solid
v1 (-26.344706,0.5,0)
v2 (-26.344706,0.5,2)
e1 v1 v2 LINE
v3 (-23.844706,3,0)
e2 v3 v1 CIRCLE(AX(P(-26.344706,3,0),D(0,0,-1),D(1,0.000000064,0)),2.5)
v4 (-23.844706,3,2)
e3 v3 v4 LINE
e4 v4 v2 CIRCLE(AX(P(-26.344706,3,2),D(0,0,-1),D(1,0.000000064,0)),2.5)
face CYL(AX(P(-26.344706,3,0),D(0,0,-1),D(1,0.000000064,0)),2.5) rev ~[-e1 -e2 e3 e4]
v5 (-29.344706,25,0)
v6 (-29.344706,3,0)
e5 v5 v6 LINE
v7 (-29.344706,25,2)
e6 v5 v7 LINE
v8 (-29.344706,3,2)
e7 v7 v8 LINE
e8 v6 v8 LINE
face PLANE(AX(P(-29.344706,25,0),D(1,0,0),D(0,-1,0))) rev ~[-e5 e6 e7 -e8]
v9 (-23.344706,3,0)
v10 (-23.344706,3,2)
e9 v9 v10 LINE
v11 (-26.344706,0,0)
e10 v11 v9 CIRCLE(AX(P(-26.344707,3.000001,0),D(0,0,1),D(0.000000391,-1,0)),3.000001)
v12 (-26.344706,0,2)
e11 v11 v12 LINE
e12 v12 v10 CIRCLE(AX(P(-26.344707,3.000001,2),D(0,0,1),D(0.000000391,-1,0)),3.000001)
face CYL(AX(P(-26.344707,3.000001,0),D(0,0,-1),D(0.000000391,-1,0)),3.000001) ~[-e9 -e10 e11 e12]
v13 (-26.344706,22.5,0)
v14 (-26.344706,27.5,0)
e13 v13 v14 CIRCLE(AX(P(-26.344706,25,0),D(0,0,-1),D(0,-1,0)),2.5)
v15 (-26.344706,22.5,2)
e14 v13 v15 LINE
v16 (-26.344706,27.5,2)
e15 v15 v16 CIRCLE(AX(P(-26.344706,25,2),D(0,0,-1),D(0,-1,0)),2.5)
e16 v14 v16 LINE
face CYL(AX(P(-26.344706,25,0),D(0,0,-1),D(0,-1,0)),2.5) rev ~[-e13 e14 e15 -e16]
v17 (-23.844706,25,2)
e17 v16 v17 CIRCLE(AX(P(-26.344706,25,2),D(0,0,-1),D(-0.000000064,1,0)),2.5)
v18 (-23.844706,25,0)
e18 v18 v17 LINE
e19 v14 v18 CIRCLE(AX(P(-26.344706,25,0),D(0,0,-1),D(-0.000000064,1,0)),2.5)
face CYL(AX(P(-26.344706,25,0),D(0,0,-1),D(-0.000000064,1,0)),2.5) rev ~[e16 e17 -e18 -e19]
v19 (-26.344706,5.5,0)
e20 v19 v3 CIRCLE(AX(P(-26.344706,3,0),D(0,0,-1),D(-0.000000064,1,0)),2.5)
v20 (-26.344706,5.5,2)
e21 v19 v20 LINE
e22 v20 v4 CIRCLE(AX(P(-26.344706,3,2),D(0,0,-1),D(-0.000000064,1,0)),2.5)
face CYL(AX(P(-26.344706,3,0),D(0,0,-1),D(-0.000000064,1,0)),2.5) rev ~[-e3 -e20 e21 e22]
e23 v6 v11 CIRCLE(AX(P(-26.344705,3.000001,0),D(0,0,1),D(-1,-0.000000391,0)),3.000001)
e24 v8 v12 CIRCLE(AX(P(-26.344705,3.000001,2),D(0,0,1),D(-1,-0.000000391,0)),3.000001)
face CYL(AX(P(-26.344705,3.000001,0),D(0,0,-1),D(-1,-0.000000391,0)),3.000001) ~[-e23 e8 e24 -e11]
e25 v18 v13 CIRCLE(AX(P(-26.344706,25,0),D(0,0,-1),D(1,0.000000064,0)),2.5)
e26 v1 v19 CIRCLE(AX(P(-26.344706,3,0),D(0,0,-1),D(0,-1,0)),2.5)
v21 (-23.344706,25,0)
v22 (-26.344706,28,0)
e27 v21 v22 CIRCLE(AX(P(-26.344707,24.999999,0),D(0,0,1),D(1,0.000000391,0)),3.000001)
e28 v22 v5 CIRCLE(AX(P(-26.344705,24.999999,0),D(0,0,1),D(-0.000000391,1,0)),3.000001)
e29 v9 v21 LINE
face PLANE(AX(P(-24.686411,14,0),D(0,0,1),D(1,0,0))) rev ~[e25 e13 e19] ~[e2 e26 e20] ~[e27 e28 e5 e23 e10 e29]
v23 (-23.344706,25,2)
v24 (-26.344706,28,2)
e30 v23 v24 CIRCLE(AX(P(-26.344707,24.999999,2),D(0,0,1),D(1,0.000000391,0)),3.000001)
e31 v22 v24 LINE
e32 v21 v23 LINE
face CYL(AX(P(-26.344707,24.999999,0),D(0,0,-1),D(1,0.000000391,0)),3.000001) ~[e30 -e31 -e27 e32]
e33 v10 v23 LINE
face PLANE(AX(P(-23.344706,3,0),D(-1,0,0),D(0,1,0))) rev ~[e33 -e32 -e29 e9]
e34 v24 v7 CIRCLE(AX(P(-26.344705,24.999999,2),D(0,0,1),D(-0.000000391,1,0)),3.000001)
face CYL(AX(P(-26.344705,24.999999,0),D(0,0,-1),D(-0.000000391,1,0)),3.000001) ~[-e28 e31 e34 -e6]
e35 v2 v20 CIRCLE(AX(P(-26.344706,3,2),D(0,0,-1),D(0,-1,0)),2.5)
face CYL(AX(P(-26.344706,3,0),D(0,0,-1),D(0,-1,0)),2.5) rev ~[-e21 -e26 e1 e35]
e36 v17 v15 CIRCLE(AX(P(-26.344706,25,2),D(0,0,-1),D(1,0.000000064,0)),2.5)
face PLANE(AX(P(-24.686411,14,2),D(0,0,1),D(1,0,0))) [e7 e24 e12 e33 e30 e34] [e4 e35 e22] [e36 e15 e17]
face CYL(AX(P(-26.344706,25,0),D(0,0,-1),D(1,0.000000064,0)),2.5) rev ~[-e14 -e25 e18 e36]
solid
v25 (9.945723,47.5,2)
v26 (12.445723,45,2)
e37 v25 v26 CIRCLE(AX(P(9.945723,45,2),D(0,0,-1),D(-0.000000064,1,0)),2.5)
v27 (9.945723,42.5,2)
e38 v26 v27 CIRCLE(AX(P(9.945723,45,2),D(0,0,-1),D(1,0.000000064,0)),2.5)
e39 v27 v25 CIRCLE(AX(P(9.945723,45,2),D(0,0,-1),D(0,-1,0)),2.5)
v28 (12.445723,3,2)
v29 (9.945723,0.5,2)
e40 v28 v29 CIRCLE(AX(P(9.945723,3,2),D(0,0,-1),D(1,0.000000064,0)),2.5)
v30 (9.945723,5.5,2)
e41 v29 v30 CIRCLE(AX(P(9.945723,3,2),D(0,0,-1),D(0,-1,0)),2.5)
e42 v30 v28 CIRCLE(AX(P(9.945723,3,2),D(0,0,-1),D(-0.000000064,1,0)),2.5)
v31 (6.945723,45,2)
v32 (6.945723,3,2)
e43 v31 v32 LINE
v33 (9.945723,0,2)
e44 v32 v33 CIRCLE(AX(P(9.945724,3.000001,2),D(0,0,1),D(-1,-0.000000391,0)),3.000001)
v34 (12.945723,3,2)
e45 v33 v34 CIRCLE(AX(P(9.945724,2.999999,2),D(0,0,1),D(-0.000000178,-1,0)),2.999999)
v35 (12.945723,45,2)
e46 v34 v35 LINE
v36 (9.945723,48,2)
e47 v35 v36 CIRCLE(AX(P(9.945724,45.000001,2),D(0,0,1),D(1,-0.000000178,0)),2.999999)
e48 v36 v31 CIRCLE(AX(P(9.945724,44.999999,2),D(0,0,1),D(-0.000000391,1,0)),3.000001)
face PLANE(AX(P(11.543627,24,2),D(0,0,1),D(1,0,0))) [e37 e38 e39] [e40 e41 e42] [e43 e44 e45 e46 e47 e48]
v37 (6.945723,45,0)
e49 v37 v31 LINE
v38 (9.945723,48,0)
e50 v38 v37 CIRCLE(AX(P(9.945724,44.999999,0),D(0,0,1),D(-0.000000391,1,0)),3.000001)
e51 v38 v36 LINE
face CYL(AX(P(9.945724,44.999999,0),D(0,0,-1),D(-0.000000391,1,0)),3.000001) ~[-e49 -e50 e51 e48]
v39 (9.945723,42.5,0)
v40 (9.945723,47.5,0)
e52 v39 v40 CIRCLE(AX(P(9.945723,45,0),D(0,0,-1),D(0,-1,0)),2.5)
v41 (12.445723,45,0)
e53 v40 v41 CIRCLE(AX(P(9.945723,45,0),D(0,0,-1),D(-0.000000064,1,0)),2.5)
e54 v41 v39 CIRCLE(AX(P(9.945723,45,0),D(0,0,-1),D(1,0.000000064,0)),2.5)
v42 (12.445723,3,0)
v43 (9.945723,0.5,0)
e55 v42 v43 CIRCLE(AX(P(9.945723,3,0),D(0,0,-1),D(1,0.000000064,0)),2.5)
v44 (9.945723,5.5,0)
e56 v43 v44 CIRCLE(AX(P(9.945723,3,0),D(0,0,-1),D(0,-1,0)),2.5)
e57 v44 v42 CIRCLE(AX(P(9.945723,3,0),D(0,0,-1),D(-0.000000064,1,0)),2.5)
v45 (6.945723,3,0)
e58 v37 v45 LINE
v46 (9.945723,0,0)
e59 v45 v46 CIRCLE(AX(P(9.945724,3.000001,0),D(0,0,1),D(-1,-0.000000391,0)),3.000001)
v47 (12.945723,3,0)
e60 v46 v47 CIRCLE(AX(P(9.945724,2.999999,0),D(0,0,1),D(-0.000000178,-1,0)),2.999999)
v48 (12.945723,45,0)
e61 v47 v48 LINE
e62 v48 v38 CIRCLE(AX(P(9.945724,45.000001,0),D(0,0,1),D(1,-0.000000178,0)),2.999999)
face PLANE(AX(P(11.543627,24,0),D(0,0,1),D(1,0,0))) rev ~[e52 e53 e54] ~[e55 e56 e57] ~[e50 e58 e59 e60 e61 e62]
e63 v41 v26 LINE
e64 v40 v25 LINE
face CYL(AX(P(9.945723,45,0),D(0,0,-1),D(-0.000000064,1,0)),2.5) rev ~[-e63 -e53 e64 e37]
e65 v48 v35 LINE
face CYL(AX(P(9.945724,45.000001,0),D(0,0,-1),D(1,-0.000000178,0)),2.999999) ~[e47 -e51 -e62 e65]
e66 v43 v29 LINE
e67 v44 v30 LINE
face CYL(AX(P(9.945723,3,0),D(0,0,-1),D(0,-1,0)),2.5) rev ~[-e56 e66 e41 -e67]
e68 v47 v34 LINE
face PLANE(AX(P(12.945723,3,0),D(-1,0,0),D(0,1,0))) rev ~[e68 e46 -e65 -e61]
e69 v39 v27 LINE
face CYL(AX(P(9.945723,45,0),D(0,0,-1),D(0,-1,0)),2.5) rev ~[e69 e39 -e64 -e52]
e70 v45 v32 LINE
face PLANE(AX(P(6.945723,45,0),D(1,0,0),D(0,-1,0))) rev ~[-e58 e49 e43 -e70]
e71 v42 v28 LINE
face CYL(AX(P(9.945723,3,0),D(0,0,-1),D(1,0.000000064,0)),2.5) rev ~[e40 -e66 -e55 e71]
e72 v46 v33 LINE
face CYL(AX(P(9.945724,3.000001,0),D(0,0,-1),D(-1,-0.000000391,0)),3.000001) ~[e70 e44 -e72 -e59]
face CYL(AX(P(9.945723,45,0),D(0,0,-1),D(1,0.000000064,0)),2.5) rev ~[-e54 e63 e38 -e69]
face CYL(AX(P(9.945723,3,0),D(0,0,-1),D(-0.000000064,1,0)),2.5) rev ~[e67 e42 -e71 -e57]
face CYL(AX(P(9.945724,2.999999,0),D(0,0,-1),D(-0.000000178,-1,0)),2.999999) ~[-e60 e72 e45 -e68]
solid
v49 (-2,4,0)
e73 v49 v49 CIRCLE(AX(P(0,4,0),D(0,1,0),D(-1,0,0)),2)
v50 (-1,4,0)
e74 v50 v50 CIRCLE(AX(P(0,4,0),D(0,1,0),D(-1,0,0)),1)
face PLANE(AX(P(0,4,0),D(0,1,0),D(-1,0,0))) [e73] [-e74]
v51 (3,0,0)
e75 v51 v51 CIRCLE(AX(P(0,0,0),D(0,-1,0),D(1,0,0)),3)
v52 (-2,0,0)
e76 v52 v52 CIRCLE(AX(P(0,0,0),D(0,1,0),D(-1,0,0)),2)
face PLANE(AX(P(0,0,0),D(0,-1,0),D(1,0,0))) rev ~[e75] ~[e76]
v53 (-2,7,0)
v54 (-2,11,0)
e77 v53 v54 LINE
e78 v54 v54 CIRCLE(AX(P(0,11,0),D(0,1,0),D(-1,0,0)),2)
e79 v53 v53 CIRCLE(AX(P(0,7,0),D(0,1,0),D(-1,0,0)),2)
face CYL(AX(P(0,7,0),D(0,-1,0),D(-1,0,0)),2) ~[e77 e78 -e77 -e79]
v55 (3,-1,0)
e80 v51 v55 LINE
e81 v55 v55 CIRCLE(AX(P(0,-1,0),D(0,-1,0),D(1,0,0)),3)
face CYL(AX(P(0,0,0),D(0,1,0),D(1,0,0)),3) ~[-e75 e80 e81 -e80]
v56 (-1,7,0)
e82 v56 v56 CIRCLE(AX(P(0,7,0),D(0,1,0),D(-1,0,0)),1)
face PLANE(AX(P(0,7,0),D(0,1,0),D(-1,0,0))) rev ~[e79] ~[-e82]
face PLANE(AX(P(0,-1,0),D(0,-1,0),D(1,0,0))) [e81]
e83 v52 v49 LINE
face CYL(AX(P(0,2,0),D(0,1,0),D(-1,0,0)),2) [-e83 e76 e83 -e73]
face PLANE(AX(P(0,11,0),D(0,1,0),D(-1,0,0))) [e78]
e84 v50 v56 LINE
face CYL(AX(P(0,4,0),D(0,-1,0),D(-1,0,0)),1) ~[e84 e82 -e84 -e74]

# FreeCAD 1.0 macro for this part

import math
import FreeCAD as App
import Part
import Sketcher
from FreeCAD import Vector
Q = App.Units.Quantity

doc = App.newDocument("Part")
params = doc.addObject("Spreadsheet::Sheet", "Params")
for row, (alias, value) in enumerate([
    ("sketch1_radius", "3.000001 mm"),
    ("sketch1_radius2", "2.5 mm"),
    ("sketch1_height", "22 mm"),
    ("pad1_length", "2 mm"),
    ("sketch2_radius", "2.999999 mm"),
    ("sketch2_radius2", "2.5 mm"),
    ("sketch2_height", "42 mm"),
    ("pad2_length", "2 mm"),
    ("sketch3_width", "2 mm"),
    ("sketch3_height", "4 mm"),
    ("revolution_angle", "360 deg"),
    ("sketch4_diameter", "6 mm"),
    ("pad3_length", "1 mm"),
    ("sketch5_diameter", "2 mm"),
    ("pad4_length", "3 mm"),
    ("sketch6_diameter", "4 mm"),
    ("pad5_length", "4 mm"),
], start=1):
    params.set(f"A{row}", alias)
    params.set(f"B{row}", "=" + value)
    params.setAlias(f"B{row}", alias)

body = doc.addObject("PartDesign::Body", "Body")

# Sketch on XY plane
sketch1 = body.newObject("Sketcher::SketchObject", "Sketch")
sketch1.AttachmentSupport = (doc.getObject("XY_Plane"), [""])
sketch1.MapMode = "FlatFace"
sketch1.addGeometry(Part.ArcOfCircle(Part.Circle(Vector(-26.3, 3, 0), Vector(0, 0, 1), 3), math.radians(-90), math.radians(0)), False)
sketch1.addGeometry(Part.LineSegment(Vector(-23.3, 3, 0), Vector(-23.3, 25, 0)), False)
sketch1.addGeometry(Part.ArcOfCircle(Part.Circle(Vector(-26.3, 25, 0), Vector(0, 0, 1), 3), math.radians(0), math.radians(90)), False)
sketch1.addGeometry(Part.ArcOfCircle(Part.Circle(Vector(-26.3, 25, 0), Vector(0, 0, 1), 3), math.radians(90), math.radians(180)), False)
sketch1.addGeometry(Part.LineSegment(Vector(-29.3, 25, 0), Vector(-29.3, 3, 0)), False)
sketch1.addGeometry(Part.ArcOfCircle(Part.Circle(Vector(-26.3, 3, 0), Vector(0, 0, 1), 3), math.radians(-180), math.radians(-90)), False)
sketch1.addGeometry(Part.ArcOfCircle(Part.Circle(Vector(-26.3, 25, 0), Vector(0, 0, 1), 2.5), math.radians(0), math.radians(90)), False)
sketch1.addGeometry(Part.ArcOfCircle(Part.Circle(Vector(-26.3, 25, 0), Vector(0, 0, 1), 2.5), math.radians(-90), math.radians(0)), False)
sketch1.addGeometry(Part.ArcOfCircle(Part.Circle(Vector(-26.3, 25, 0), Vector(0, 0, 1), 2.5), math.radians(90), math.radians(270)), False)
sketch1.addGeometry(Part.ArcOfCircle(Part.Circle(Vector(-26.3, 3, 0), Vector(0, 0, 1), 2.5), math.radians(0), math.radians(90)), False)
sketch1.addGeometry(Part.ArcOfCircle(Part.Circle(Vector(-26.3, 3, 0), Vector(0, 0, 1), 2.5), math.radians(-90), math.radians(0)), False)
sketch1.addGeometry(Part.ArcOfCircle(Part.Circle(Vector(-26.3, 3, 0), Vector(0, 0, 1), 2.5), math.radians(90), math.radians(270)), False)
sketch1.addConstraint(Sketcher.Constraint("Tangent", 0, 2, 1, 1))
sketch1.addConstraint(Sketcher.Constraint("Tangent", 1, 2, 2, 1))
sketch1.addConstraint(Sketcher.Constraint("Tangent", 2, 2, 3, 1))
sketch1.addConstraint(Sketcher.Constraint("Tangent", 3, 2, 4, 1))
sketch1.addConstraint(Sketcher.Constraint("Tangent", 4, 2, 5, 1))
sketch1.addConstraint(Sketcher.Constraint("Tangent", 5, 2, 0, 1))
sketch1.addConstraint(Sketcher.Constraint("Tangent", 6, 1, 7, 2))
sketch1.addConstraint(Sketcher.Constraint("Tangent", 7, 1, 8, 2))
sketch1.addConstraint(Sketcher.Constraint("Tangent", 8, 1, 6, 2))
sketch1.addConstraint(Sketcher.Constraint("Tangent", 9, 1, 10, 2))
sketch1.addConstraint(Sketcher.Constraint("Tangent", 10, 1, 11, 2))
sketch1.addConstraint(Sketcher.Constraint("Tangent", 11, 1, 9, 2))
sketch1.addConstraint(Sketcher.Constraint("Vertical", 1))
sketch1.addConstraint(Sketcher.Constraint("Vertical", 4))
sketch1.addConstraint(Sketcher.Constraint("Coincident", 6, 3, 2, 3))
sketch1.addConstraint(Sketcher.Constraint("Coincident", 9, 3, 0, 3))
sketch1.addConstraint(Sketcher.Constraint("Equal", 0, 2))
sketch1.addConstraint(Sketcher.Constraint("Equal", 2, 3))
sketch1.addConstraint(Sketcher.Constraint("Equal", 8, 9))
sketch1.addConstraint(Sketcher.Constraint("PointOnObject", 5, 2, -1))
sketch1.addConstraint(Sketcher.Constraint("Horizontal", 3, 2, 6, 1))
sketch1.addConstraint(Sketcher.Constraint("Horizontal", 4, 2, 9, 1))
sketch1.addConstraint(Sketcher.Constraint("Vertical", 11, 3, 2, 2))
sketch1.addConstraint(Sketcher.Constraint("Vertical", 2, 2, 5, 2))
sketch1.addConstraint(Sketcher.Constraint("Vertical", 5, 2, 7, 1))
sketch1.addConstraint(Sketcher.Constraint("Vertical", 7, 1, 8, 1))
sketch1.addConstraint(Sketcher.Constraint("Vertical", 8, 1, 10, 1))
sketch1.addConstraint(Sketcher.Constraint("Vertical", 10, 1, 11, 1))
sketch1.addConstraint(Sketcher.Constraint("Radius", 0, Q("3.000001 mm")))
sketch1.addConstraint(Sketcher.Constraint("Radius", 6, Q("2.5 mm")))
sketch1.addConstraint(Sketcher.Constraint("DistanceY", 1, 1, 1, 2, Q("22 mm")))
sketch1.addConstraint(Sketcher.Constraint("DistanceX", 0, 3, -1, 1, Q("26.344707 mm")))
sketch1.setExpression("Constraints[28]", "Params.sketch1_radius")
sketch1.setExpression("Constraints[29]", "Params.sketch1_radius2")
sketch1.setExpression("Constraints[30]", "Params.sketch1_height")
pad1 = body.newObject("PartDesign::Pad", "Pad")
pad1.Profile = sketch1
pad1.setExpression("Length", "Params.pad1_length")
body2 = doc.addObject("PartDesign::Body", "Body001")

# Sketch on XY plane
sketch2 = body2.newObject("Sketcher::SketchObject", "Sketch001")
sketch2.AttachmentSupport = (doc.getObject("XY_Plane001"), [""])
sketch2.MapMode = "FlatFace"
sketch2.addGeometry(Part.ArcOfCircle(Part.Circle(Vector(9.9, 3, 0), Vector(0, 0, 1), 3), math.radians(-90), math.radians(0)), False)
sketch2.addGeometry(Part.LineSegment(Vector(12.9, 3, 0), Vector(12.9, 45, 0)), False)
sketch2.addGeometry(Part.ArcOfCircle(Part.Circle(Vector(9.9, 45, 0), Vector(0, 0, 1), 3), math.radians(0), math.radians(90)), False)
sketch2.addGeometry(Part.ArcOfCircle(Part.Circle(Vector(9.9, 45, 0), Vector(0, 0, 1), 3), math.radians(90), math.radians(180)), False)
sketch2.addGeometry(Part.LineSegment(Vector(6.9, 45, 0), Vector(6.9, 3, 0)), False)
sketch2.addGeometry(Part.ArcOfCircle(Part.Circle(Vector(9.9, 3, 0), Vector(0, 0, 1), 3), math.radians(-180), math.radians(-90)), False)
sketch2.addGeometry(Part.ArcOfCircle(Part.Circle(Vector(9.9, 45, 0), Vector(0, 0, 1), 2.5), math.radians(0), math.radians(90)), False)
sketch2.addGeometry(Part.ArcOfCircle(Part.Circle(Vector(9.9, 45, 0), Vector(0, 0, 1), 2.5), math.radians(-90), math.radians(0)), False)
sketch2.addGeometry(Part.ArcOfCircle(Part.Circle(Vector(9.9, 45, 0), Vector(0, 0, 1), 2.5), math.radians(90), math.radians(270)), False)
sketch2.addGeometry(Part.ArcOfCircle(Part.Circle(Vector(9.9, 3, 0), Vector(0, 0, 1), 2.5), math.radians(0), math.radians(90)), False)
sketch2.addGeometry(Part.ArcOfCircle(Part.Circle(Vector(9.9, 3, 0), Vector(0, 0, 1), 2.5), math.radians(-90), math.radians(0)), False)
sketch2.addGeometry(Part.ArcOfCircle(Part.Circle(Vector(9.9, 3, 0), Vector(0, 0, 1), 2.5), math.radians(90), math.radians(270)), False)
sketch2.addConstraint(Sketcher.Constraint("Tangent", 0, 2, 1, 1))
sketch2.addConstraint(Sketcher.Constraint("Tangent", 1, 2, 2, 1))
sketch2.addConstraint(Sketcher.Constraint("Tangent", 2, 2, 3, 1))
sketch2.addConstraint(Sketcher.Constraint("Tangent", 3, 2, 4, 1))
sketch2.addConstraint(Sketcher.Constraint("Tangent", 4, 2, 5, 1))
sketch2.addConstraint(Sketcher.Constraint("Tangent", 5, 2, 0, 1))
sketch2.addConstraint(Sketcher.Constraint("Tangent", 6, 1, 7, 2))
sketch2.addConstraint(Sketcher.Constraint("Tangent", 7, 1, 8, 2))
sketch2.addConstraint(Sketcher.Constraint("Tangent", 8, 1, 6, 2))
sketch2.addConstraint(Sketcher.Constraint("Tangent", 9, 1, 10, 2))
sketch2.addConstraint(Sketcher.Constraint("Tangent", 10, 1, 11, 2))
sketch2.addConstraint(Sketcher.Constraint("Tangent", 11, 1, 9, 2))
sketch2.addConstraint(Sketcher.Constraint("Vertical", 1))
sketch2.addConstraint(Sketcher.Constraint("Vertical", 4))
sketch2.addConstraint(Sketcher.Constraint("Coincident", 6, 3, 2, 3))
sketch2.addConstraint(Sketcher.Constraint("Coincident", 9, 3, 0, 3))
sketch2.addConstraint(Sketcher.Constraint("Equal", 0, 2))
sketch2.addConstraint(Sketcher.Constraint("Equal", 2, 3))
sketch2.addConstraint(Sketcher.Constraint("Equal", 8, 9))
sketch2.addConstraint(Sketcher.Constraint("PointOnObject", 5, 2, -1))
sketch2.addConstraint(Sketcher.Constraint("Horizontal", 3, 2, 6, 1))
sketch2.addConstraint(Sketcher.Constraint("Horizontal", 4, 2, 9, 1))
sketch2.addConstraint(Sketcher.Constraint("Vertical", 11, 3, 2, 2))
sketch2.addConstraint(Sketcher.Constraint("Vertical", 2, 2, 5, 2))
sketch2.addConstraint(Sketcher.Constraint("Vertical", 5, 2, 7, 1))
sketch2.addConstraint(Sketcher.Constraint("Vertical", 7, 1, 8, 1))
sketch2.addConstraint(Sketcher.Constraint("Vertical", 8, 1, 10, 1))
sketch2.addConstraint(Sketcher.Constraint("Vertical", 10, 1, 11, 1))
sketch2.addConstraint(Sketcher.Constraint("Radius", 0, Q("2.999999 mm")))
sketch2.addConstraint(Sketcher.Constraint("Radius", 6, Q("2.5 mm")))
sketch2.addConstraint(Sketcher.Constraint("DistanceY", 1, 1, 1, 2, Q("42 mm")))
sketch2.addConstraint(Sketcher.Constraint("DistanceX", -1, 1, 0, 3, Q("9.945724 mm")))
sketch2.setExpression("Constraints[28]", "Params.sketch2_radius")
sketch2.setExpression("Constraints[29]", "Params.sketch2_radius2")
sketch2.setExpression("Constraints[30]", "Params.sketch2_height")
pad2 = body2.newObject("PartDesign::Pad", "Pad001")
pad2.Profile = sketch2
pad2.setExpression("Length", "Params.pad2_length")
body3 = doc.addObject("PartDesign::Body", "Body002")

# Sketch on XY plane
sketch3 = body3.newObject("Sketcher::SketchObject", "Sketch002")
sketch3.AttachmentSupport = (doc.getObject("XY_Plane002"), [""])
sketch3.MapMode = "FlatFace"
sketch3.addGeometry(Part.LineSegment(Vector(-2, 4, 0), Vector(-2, 0, 0)), False)
sketch3.addGeometry(Part.LineSegment(Vector(-2, 0, 0), Vector(0, 0, 0)), False)
sketch3.addGeometry(Part.LineSegment(Vector(0, 0, 0), Vector(0, 4, 0)), False)
sketch3.addGeometry(Part.LineSegment(Vector(0, 4, 0), Vector(-2, 4, 0)), False)
sketch3.addConstraint(Sketcher.Constraint("Coincident", 0, 2, 1, 1))
sketch3.addConstraint(Sketcher.Constraint("Coincident", 1, 2, 2, 1))
sketch3.addConstraint(Sketcher.Constraint("Coincident", 2, 2, 3, 1))
sketch3.addConstraint(Sketcher.Constraint("Coincident", 3, 2, 0, 1))
sketch3.addConstraint(Sketcher.Constraint("Vertical", 0))
sketch3.addConstraint(Sketcher.Constraint("Horizontal", 1))
sketch3.addConstraint(Sketcher.Constraint("Vertical", 2))
sketch3.addConstraint(Sketcher.Constraint("Horizontal", 3))
sketch3.addConstraint(Sketcher.Constraint("Coincident", 1, 2, -1, 1))
sketch3.addConstraint(Sketcher.Constraint("DistanceX", 1, 1, 1, 2, Q("2 mm")))
sketch3.addConstraint(Sketcher.Constraint("DistanceY", 0, 2, 0, 1, Q("4 mm")))
sketch3.setExpression("Constraints[9]", "Params.sketch3_width")
sketch3.setExpression("Constraints[10]", "Params.sketch3_height")
revolution = body3.newObject("PartDesign::Revolution", "Revolution")
revolution.Profile = sketch3
revolution.ReferenceAxis = (sketch3, ["V_Axis"])
revolution.setExpression("Angle", "Params.revolution_angle")

# Sketch on XZ plane
sketch4 = body3.newObject("Sketcher::SketchObject", "Sketch003")
sketch4.AttachmentSupport = (doc.getObject("XZ_Plane002"), [""])
sketch4.MapMode = "FlatFace"
sketch4.addGeometry(Part.Circle(Vector(0, 0, 0), Vector(0, 0, 1), 3), False)
sketch4.addConstraint(Sketcher.Constraint("Coincident", 0, 3, -1, 1))
sketch4.addConstraint(Sketcher.Constraint("Diameter", 0, Q("6 mm")))
sketch4.setExpression("Constraints[1]", "Params.sketch4_diameter")
pad3 = body3.newObject("PartDesign::Pad", "Pad002")
pad3.Profile = sketch4
pad3.setExpression("Length", "Params.pad3_length")

# Sketch on XZ plane
sketch5 = body3.newObject("Sketcher::SketchObject", "Sketch004")
sketch5.AttachmentSupport = (doc.getObject("XZ_Plane002"), [""])
sketch5.MapMode = "FlatFace"
sketch5.AttachmentOffset = App.Placement(Vector(0, 0, -4), App.Rotation())
sketch5.addGeometry(Part.Circle(Vector(0, 0, 0), Vector(0, 0, 1), 1), False)
sketch5.addConstraint(Sketcher.Constraint("Coincident", 0, 3, -1, 1))
sketch5.addConstraint(Sketcher.Constraint("Diameter", 0, Q("2 mm")))
sketch5.setExpression("Constraints[1]", "Params.sketch5_diameter")
pad4 = body3.newObject("PartDesign::Pad", "Pad003")
pad4.Profile = sketch5
pad4.setExpression("Length", "Params.pad4_length")
pad4.Reversed = True

# Sketch on XZ plane
sketch6 = body3.newObject("Sketcher::SketchObject", "Sketch005")
sketch6.AttachmentSupport = (doc.getObject("XZ_Plane002"), [""])
sketch6.MapMode = "FlatFace"
sketch6.AttachmentOffset = App.Placement(Vector(0, 0, -7), App.Rotation())
sketch6.addGeometry(Part.Circle(Vector(0, 0, 0), Vector(0, 0, 1), 2), False)
sketch6.addConstraint(Sketcher.Constraint("Coincident", 0, 3, -1, 1))
sketch6.addConstraint(Sketcher.Constraint("Diameter", 0, Q("4 mm")))
sketch6.setExpression("Constraints[1]", "Params.sketch6_diameter")
pad5 = body3.newObject("PartDesign::Pad", "Pad004")
pad5.Profile = sketch6
pad5.setExpression("Length", "Params.pad5_length")
pad5.Reversed = True

doc.recompute()
